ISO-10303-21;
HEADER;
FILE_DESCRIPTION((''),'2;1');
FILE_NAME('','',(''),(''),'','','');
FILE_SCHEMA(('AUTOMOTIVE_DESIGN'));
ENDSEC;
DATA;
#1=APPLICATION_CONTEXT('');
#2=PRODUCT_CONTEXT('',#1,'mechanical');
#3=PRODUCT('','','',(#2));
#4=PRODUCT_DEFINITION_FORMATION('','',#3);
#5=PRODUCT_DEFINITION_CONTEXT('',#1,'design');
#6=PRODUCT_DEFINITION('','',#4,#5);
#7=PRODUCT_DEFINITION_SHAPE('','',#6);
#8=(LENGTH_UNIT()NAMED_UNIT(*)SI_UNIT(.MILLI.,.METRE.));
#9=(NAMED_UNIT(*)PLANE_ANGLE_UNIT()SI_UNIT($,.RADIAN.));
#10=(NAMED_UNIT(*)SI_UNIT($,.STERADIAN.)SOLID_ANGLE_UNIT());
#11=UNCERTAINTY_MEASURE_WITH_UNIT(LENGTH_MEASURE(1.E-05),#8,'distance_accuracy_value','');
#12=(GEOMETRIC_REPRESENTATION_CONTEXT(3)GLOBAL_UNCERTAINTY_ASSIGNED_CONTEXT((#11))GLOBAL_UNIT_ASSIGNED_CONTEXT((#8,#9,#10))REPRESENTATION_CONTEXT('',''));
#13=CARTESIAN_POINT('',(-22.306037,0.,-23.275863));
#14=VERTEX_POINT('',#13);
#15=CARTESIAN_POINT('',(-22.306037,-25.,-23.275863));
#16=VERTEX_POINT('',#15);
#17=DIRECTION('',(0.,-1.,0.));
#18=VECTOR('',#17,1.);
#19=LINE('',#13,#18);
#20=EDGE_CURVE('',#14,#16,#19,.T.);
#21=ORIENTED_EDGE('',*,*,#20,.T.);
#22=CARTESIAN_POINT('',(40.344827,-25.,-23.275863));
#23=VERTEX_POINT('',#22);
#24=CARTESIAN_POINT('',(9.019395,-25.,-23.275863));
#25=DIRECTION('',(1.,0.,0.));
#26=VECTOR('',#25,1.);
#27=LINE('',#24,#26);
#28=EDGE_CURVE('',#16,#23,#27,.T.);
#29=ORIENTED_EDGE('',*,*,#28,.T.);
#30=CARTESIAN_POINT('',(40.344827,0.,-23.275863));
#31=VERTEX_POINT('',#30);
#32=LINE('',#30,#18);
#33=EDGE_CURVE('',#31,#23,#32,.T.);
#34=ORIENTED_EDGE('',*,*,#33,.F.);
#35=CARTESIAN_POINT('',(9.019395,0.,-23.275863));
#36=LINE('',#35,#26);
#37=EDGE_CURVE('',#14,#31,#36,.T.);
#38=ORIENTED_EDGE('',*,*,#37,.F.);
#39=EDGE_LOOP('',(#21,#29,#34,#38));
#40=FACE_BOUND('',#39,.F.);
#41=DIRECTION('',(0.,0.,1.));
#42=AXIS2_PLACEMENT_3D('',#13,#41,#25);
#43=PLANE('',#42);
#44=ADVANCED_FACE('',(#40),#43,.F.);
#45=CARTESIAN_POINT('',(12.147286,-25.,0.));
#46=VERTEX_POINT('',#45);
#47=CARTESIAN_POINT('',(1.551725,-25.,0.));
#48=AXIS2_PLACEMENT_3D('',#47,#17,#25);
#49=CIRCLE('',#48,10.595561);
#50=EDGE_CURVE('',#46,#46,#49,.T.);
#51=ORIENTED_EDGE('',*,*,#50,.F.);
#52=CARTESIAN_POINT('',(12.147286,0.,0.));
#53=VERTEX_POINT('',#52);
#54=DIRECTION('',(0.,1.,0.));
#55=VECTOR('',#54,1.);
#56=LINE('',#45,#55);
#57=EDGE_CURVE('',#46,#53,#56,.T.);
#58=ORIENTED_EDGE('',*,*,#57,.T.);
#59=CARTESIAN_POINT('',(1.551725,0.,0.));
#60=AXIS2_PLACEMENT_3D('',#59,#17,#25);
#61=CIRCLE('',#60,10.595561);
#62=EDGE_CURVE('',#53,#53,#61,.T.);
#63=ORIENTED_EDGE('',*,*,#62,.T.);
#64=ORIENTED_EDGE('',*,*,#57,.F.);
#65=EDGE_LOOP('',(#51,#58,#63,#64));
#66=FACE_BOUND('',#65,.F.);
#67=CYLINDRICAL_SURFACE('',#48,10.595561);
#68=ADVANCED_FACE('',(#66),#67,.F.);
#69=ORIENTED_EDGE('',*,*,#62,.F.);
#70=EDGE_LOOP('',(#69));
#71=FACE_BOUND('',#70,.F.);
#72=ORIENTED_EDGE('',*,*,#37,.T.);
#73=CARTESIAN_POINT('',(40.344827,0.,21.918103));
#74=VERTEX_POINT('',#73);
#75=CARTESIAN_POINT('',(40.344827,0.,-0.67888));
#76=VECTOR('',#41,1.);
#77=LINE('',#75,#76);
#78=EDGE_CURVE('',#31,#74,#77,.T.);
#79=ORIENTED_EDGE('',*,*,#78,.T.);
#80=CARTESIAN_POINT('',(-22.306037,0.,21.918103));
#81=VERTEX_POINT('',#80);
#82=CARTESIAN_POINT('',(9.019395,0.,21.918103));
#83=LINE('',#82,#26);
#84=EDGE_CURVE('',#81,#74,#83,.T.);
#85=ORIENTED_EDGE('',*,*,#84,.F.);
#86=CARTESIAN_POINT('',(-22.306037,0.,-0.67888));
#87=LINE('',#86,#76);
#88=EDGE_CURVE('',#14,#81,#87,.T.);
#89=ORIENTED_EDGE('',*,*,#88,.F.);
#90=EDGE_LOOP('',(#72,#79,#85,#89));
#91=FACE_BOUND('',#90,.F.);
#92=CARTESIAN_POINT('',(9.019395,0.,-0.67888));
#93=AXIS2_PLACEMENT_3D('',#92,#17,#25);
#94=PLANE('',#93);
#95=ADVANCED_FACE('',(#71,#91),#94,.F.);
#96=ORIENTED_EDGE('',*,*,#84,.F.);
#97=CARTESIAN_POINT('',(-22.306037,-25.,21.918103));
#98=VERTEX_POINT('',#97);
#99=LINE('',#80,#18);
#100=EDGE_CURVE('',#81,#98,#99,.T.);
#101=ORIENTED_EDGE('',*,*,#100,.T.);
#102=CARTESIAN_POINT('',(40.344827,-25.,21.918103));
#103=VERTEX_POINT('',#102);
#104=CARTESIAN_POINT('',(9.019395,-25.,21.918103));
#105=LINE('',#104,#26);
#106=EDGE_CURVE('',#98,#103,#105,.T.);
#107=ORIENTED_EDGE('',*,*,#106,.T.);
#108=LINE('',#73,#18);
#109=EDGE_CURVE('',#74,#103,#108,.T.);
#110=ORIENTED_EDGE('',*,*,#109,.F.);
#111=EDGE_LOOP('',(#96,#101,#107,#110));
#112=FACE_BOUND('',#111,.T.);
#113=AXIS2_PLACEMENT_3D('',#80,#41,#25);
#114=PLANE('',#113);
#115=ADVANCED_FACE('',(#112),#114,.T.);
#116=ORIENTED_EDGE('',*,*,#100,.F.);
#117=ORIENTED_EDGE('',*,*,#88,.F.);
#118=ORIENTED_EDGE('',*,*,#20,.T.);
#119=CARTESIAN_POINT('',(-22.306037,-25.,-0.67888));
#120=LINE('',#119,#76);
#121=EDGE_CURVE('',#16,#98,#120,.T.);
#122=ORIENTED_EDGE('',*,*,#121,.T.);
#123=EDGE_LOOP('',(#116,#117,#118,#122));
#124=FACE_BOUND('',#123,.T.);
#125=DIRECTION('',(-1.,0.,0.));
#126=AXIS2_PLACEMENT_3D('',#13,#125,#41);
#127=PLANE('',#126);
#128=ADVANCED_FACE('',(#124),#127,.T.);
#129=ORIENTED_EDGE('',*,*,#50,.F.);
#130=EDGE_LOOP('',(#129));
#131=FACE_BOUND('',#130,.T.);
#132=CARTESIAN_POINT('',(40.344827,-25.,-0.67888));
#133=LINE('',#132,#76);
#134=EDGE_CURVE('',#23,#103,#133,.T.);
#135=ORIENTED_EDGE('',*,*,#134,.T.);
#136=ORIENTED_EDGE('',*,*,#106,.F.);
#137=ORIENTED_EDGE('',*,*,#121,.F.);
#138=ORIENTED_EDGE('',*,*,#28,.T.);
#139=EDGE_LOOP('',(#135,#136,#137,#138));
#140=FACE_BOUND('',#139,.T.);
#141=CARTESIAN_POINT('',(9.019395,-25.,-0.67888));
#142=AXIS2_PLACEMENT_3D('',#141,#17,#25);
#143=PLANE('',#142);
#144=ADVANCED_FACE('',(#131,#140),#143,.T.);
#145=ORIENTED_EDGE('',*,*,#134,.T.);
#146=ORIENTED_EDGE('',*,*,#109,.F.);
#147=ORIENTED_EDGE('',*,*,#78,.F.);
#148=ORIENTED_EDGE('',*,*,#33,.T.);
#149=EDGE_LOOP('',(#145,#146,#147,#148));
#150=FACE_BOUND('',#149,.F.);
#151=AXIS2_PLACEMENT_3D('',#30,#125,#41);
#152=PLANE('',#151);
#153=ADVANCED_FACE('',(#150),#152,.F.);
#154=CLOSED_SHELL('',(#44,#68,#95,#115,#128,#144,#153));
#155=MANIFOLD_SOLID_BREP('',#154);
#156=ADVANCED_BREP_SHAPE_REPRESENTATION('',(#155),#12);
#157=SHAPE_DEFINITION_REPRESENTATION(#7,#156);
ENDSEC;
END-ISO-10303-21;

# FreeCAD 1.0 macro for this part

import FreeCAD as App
import Part
import Sketcher
from FreeCAD import Vector
Q = App.Units.Quantity


def add_polygon(sketch, points):
    """Adds a closed chain of lines whose ends are joined by coincident constraints."""
    first, n = sketch.GeometryCount, len(points)
    for a, b in zip(points, points[1:] + points[:1]):
        sketch.addGeometry(Part.LineSegment(App.Vector(*a, 0), App.Vector(*b, 0)), False)
    for i in range(n):
        sketch.addConstraint(Sketcher.Constraint("Coincident", first + i, 2, first + (i + 1) % n, 1))

doc = App.newDocument("Part")
params = doc.addObject("Spreadsheet::Sheet", "Params")
for row, (alias, value) in enumerate([
    ("pad1_length", "25 mm"),
    ("pocket1_length", "25 mm"),
    ("pad2_length", "25 mm"),
], start=1):
    params.set(f"A{row}", alias)
    params.set(f"B{row}", "=" + value)
    params.setAlias(f"B{row}", alias)

body = doc.addObject("PartDesign::Body", "Body")

# Sketch on XZ plane
sketch1 = body.newObject("Sketcher::SketchObject", "Sketch")
sketch1.AttachmentSupport = (doc.getObject("XZ_Plane"), [""])
sketch1.MapMode = "FlatFace"
add_polygon(sketch1, [(-22, 22), (-22, -23), (40, -23), (40, 22)])  # lines 0-3
sketch1.addConstraint(Sketcher.Constraint("Vertical", 0))
sketch1.addConstraint(Sketcher.Constraint("Horizontal", 1))
sketch1.addConstraint(Sketcher.Constraint("Vertical", 2))
sketch1.addConstraint(Sketcher.Constraint("Horizontal", 3))
sketch1.addConstraint(Sketcher.Constraint("DistanceX", 1, 1, 1, 2, Q("62.650863 mm")))
sketch1.addConstraint(Sketcher.Constraint("DistanceY", 0, 2, 0, 1, Q("45.193966 mm")))
sketch1.addConstraint(Sketcher.Constraint("DistanceX", 0, 2, -1, 1, Q("22.306037 mm")))
sketch1.addConstraint(Sketcher.Constraint("DistanceY", 0, 2, -1, 1, Q("23.275863 mm")))
pad1 = body.newObject("PartDesign::Pad", "Pad")
pad1.Profile = sketch1
pad1.setExpression("Length", "Params.pad1_length")

# Sketch on XZ plane
sketch2 = body.newObject("Sketcher::SketchObject", "Sketch001")
sketch2.AttachmentSupport = (doc.getObject("XZ_Plane"), [""])
sketch2.MapMode = "FlatFace"
sketch2.AttachmentOffset = App.Placement(Vector(0, 0, 25), App.Rotation())
sketch2.addGeometry(Part.Circle(Vector(2, 0, 0), Vector(0, 0, 1), 11), False)
sketch2.addConstraint(Sketcher.Constraint("PointOnObject", 0, 3, -1))
sketch2.addConstraint(Sketcher.Constraint("Diameter", 0, Q("21.191122 mm")))
sketch2.addConstraint(Sketcher.Constraint("DistanceX", -1, 1, 0, 3, Q("1.551725 mm")))
pocket1 = body.newObject("PartDesign::Pocket", "Pocket")
pocket1.Profile = sketch2
pocket1.setExpression("Length", "Params.pocket1_length")

# Sketch on XZ plane
sketch3 = body.newObject("Sketcher::SketchObject", "Sketch002")
sketch3.AttachmentSupport = (doc.getObject("XZ_Plane"), [""])
sketch3.MapMode = "FlatFace"
sketch3.AttachmentOffset = App.Placement(Vector(0, 0, 25), App.Rotation())
sketch3.addGeometry(Part.Circle(Vector(27, 0, 0), Vector(0, 0, 1), 7), False)
sketch3.addConstraint(Sketcher.Constraint("PointOnObject", 0, 3, -1))
sketch3.addConstraint(Sketcher.Constraint("Diameter", 0, Q("13.126752 mm")))
sketch3.addConstraint(Sketcher.Constraint("DistanceX", -1, 1, 0, 3, Q("26.767241 mm")))
pad2 = body.newObject("PartDesign::Pad", "Pad001")
pad2.Profile = sketch3
pad2.setExpression("Length", "Params.pad2_length")
pad2.Reversed = True

doc.recompute()
